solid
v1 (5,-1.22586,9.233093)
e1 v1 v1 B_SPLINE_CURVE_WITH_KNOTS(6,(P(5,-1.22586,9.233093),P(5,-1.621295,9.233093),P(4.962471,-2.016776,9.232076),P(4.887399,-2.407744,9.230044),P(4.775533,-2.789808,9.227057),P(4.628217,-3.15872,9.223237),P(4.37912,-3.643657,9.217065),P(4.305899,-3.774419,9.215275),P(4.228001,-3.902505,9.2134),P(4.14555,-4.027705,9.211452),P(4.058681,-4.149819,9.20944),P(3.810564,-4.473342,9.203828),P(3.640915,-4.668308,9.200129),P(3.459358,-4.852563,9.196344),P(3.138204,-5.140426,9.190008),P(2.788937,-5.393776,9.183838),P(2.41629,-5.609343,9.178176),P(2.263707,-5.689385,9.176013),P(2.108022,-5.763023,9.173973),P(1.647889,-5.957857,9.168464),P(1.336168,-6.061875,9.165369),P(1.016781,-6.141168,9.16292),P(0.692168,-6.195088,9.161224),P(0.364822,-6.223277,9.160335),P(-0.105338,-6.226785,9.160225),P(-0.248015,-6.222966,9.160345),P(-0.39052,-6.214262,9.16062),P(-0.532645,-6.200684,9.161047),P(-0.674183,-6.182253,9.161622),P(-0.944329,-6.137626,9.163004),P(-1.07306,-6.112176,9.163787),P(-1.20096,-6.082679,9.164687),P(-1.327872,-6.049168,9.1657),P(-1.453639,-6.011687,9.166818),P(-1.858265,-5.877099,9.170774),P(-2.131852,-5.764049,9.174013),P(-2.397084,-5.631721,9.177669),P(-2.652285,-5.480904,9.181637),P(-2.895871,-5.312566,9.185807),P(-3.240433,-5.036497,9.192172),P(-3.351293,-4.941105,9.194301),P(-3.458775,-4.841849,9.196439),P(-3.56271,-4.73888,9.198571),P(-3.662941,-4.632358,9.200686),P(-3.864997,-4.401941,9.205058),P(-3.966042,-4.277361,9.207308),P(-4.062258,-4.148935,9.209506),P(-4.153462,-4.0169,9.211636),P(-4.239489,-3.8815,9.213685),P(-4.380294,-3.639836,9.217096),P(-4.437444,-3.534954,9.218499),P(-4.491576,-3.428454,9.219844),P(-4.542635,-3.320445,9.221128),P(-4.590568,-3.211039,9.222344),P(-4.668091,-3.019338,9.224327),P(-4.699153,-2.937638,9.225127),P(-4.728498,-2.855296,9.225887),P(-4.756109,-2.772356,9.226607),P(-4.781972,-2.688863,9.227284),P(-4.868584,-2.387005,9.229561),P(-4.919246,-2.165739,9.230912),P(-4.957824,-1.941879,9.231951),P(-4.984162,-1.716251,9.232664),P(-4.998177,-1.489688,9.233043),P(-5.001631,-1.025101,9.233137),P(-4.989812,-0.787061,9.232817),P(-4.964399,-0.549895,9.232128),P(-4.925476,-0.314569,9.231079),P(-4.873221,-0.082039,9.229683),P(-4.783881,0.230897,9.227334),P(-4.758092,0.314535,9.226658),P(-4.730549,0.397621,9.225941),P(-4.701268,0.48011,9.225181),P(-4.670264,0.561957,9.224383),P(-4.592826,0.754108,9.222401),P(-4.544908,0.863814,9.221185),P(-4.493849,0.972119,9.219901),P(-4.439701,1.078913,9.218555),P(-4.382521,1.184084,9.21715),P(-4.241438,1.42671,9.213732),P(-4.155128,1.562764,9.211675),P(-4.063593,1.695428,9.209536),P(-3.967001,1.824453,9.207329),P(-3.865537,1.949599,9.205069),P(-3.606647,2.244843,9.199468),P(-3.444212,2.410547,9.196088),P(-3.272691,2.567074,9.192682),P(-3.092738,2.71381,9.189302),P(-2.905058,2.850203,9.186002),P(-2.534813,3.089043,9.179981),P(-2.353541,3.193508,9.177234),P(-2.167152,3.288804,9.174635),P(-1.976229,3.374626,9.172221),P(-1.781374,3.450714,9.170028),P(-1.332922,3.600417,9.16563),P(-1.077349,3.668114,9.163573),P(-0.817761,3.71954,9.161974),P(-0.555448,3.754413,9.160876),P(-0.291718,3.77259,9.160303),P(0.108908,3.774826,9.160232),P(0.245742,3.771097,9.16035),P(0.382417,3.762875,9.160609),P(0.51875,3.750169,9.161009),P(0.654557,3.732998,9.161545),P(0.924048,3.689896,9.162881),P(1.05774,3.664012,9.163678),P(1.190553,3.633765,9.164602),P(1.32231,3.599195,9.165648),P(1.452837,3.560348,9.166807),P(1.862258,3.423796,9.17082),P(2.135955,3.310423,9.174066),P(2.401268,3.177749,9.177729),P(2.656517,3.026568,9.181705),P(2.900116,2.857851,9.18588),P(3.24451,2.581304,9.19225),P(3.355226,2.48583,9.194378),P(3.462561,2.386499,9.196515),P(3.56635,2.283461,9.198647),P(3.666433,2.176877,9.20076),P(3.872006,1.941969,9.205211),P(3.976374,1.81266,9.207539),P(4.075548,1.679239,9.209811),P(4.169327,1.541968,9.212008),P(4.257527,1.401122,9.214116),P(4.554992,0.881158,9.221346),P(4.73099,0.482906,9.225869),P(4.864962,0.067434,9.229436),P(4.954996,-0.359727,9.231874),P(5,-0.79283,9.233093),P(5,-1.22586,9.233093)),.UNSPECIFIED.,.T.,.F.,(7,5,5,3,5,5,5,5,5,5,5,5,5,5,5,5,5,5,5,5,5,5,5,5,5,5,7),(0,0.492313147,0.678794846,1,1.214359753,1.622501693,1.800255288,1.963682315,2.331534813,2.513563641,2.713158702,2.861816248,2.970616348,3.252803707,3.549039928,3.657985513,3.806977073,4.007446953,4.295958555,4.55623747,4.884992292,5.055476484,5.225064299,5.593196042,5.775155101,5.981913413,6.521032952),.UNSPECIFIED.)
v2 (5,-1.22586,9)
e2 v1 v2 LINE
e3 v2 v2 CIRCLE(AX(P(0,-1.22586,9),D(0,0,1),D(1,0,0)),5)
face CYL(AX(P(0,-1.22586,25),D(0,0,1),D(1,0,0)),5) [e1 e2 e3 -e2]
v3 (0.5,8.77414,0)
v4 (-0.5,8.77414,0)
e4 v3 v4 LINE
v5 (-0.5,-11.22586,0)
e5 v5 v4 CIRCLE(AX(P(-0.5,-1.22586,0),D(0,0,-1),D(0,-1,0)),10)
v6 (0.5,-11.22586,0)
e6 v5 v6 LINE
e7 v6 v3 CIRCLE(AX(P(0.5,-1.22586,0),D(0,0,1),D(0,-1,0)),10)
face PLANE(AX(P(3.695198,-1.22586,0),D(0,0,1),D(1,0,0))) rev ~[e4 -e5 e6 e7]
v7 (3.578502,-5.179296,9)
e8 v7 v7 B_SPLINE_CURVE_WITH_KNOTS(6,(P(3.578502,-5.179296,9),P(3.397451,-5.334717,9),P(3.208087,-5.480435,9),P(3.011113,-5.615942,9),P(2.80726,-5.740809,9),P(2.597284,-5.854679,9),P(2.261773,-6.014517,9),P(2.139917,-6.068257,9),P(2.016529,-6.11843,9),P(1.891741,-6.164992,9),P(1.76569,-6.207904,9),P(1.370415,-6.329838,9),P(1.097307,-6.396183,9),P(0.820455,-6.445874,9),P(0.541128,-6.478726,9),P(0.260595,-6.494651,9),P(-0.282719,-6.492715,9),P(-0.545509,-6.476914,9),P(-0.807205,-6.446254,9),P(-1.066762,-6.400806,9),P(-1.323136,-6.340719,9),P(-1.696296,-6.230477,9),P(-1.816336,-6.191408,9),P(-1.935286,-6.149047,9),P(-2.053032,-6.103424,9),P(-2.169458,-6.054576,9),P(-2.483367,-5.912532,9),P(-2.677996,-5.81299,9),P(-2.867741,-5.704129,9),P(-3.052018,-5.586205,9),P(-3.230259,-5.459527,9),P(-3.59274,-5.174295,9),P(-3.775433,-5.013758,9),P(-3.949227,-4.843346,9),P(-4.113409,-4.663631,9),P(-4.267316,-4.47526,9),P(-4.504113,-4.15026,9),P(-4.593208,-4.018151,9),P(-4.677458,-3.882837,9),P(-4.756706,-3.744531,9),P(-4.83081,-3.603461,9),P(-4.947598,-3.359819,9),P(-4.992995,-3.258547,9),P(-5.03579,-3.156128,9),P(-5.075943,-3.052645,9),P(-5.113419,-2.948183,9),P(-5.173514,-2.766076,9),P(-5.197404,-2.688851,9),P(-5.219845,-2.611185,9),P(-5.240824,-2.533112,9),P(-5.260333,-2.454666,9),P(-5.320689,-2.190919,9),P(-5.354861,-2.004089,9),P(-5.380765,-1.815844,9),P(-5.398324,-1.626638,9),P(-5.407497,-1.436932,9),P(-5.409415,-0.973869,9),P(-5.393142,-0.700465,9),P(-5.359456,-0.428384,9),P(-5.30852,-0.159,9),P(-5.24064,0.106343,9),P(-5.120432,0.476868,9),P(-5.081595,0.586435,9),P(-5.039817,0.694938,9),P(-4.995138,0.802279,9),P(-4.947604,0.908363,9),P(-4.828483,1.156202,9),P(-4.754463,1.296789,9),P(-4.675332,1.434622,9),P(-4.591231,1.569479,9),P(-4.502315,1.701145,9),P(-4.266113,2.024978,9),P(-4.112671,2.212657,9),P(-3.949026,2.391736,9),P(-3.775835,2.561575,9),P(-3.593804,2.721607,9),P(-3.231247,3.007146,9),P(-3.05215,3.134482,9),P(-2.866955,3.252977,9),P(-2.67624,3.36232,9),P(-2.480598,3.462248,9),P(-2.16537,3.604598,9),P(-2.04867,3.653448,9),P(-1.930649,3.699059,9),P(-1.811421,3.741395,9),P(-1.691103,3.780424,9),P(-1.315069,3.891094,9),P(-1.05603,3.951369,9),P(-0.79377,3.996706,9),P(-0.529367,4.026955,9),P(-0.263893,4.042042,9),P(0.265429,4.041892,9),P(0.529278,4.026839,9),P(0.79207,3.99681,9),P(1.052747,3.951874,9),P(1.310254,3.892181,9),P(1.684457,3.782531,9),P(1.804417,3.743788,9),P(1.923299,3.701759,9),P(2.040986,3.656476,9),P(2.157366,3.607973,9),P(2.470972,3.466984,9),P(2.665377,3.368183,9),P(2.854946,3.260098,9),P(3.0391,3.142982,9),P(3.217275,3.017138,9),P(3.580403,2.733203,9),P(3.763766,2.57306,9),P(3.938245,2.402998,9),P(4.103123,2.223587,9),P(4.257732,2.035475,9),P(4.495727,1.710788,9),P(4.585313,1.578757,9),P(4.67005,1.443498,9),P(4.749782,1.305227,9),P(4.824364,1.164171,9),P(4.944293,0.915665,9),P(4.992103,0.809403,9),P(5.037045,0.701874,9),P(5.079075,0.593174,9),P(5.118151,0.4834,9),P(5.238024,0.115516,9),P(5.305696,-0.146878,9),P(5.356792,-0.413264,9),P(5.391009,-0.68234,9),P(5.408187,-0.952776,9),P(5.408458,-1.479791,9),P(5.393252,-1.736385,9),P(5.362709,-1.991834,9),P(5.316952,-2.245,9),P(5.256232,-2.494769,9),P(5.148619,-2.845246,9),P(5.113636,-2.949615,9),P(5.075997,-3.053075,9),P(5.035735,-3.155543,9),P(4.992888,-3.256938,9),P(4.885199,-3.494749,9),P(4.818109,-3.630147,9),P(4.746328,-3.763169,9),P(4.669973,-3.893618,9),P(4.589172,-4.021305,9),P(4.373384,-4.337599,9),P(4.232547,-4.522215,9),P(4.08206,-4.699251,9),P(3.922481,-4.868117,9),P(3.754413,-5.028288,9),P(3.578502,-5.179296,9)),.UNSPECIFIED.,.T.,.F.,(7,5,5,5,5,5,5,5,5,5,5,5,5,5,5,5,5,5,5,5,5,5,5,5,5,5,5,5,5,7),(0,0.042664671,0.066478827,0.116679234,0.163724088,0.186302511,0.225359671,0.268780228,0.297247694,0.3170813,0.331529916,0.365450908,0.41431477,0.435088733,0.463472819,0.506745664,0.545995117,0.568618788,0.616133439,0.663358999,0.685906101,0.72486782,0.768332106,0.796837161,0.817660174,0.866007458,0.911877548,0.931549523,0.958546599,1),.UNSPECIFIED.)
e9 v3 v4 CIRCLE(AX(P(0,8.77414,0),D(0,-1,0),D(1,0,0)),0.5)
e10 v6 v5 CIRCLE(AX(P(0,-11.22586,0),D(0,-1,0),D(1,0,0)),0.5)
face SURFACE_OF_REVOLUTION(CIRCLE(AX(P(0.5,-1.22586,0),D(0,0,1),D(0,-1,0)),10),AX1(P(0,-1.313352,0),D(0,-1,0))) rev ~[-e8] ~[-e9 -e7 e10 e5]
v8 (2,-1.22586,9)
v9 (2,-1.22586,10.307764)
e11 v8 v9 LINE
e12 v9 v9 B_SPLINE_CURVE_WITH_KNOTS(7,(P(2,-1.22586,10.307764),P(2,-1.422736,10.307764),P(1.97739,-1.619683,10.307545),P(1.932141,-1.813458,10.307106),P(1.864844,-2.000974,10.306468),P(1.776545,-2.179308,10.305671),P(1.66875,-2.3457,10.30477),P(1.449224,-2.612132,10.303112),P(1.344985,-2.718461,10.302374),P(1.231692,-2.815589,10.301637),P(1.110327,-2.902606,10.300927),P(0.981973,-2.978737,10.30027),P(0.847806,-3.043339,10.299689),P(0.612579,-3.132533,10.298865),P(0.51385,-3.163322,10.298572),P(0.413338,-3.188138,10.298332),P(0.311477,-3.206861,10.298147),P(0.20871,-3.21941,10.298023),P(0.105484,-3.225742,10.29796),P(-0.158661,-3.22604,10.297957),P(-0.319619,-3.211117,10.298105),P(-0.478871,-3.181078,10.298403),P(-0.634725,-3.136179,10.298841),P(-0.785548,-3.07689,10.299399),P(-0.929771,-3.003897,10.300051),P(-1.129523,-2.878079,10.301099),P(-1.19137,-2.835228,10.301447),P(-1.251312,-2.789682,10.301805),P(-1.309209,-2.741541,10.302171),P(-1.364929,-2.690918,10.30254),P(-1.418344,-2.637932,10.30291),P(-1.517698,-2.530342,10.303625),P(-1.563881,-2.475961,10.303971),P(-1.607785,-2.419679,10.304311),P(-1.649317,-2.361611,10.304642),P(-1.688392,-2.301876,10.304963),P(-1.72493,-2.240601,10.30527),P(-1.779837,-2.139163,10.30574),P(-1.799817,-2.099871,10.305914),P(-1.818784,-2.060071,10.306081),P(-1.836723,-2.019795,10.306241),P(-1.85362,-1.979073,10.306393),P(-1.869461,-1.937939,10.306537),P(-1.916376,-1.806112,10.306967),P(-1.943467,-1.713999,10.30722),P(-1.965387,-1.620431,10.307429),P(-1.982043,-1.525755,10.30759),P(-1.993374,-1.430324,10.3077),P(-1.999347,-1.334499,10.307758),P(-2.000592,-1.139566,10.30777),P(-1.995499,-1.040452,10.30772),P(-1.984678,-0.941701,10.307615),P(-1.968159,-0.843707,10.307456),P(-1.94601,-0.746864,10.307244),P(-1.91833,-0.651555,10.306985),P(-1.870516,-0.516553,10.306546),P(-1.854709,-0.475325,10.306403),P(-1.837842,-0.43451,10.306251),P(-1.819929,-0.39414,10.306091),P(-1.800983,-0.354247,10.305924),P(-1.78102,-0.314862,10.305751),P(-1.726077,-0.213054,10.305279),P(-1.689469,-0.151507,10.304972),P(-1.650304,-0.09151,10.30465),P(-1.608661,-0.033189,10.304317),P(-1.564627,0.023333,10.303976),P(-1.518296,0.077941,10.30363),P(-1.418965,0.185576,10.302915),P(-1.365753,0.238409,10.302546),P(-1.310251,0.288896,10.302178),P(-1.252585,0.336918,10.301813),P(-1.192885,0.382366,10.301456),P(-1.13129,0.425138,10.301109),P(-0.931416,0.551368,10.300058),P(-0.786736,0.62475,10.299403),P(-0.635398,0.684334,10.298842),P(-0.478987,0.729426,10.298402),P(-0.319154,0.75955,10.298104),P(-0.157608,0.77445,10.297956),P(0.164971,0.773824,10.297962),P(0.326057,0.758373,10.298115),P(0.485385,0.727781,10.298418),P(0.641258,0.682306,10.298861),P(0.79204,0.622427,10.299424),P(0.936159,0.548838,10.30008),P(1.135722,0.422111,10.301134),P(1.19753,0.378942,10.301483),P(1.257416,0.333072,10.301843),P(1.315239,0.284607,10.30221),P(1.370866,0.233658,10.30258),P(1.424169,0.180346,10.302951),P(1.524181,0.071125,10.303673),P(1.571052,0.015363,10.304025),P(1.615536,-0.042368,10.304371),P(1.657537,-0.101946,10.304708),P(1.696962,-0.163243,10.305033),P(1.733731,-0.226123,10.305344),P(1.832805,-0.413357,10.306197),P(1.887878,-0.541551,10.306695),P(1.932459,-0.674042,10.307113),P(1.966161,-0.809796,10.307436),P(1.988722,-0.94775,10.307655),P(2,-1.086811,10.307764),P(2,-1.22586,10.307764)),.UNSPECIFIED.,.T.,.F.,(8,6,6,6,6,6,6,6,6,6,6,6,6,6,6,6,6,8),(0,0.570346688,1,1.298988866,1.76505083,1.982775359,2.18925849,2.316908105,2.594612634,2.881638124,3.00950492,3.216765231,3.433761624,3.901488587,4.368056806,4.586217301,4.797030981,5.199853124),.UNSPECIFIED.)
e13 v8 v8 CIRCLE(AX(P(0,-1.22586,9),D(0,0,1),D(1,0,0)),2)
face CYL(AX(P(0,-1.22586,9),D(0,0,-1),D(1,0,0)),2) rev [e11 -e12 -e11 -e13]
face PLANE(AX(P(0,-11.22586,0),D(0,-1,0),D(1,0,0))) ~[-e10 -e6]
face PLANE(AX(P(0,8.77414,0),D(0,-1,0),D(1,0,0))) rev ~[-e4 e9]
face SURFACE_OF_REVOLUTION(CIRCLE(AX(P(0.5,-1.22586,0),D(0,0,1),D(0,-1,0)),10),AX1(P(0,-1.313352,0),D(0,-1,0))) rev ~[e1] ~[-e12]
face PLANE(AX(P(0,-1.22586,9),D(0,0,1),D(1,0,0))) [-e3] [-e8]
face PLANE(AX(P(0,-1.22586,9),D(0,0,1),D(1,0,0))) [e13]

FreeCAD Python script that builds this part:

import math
import FreeCAD as App
import Part
import Sketcher
from FreeCAD import Vector

doc = App.newDocument("Part")
params = doc.addObject("Spreadsheet::Sheet", "Params")
for row, (alias, value) in enumerate([
    ("sketch1_radius", "10 mm"),
    ("sketch1_width", "0.5 mm"),
    ("revolution_angle", "180 deg"),
    ("sketch2_diameter", "11 mm"),
    ("sketch2_diameter2", "10 mm"),
    ("pocket1_length", "16 mm"),
    ("sketch3_diameter", "4 mm"),
    ("pocket2_length", "5 mm"),
], start=1):
    params.set(f"A{row}", alias)
    params.set(f"B{row}", "=" + value)
    params.setAlias(f"B{row}", alias)

body = doc.addObject("PartDesign::Body", "Body")

sketch1 = doc.addObject("Sketcher::SketchObject", "Sketch")
body.addObject(sketch1)
sketch1.AttachmentSupport = (doc.XY_Plane, [""])
sketch1.MapMode = "FlatFace"
sketch1.addGeometry([
    Part.LineSegment(Vector(0, 8.8, 0), Vector(0, -11.2, 0)),
    Part.LineSegment(Vector(0, -11.2, 0), Vector(0.5, -11.2, 0)),
    Part.ArcOfCircle(Part.Circle(Vector(0.5, -1.2, 0), Vector(0, 0, 1), 10), math.radians(-90), math.radians(90)),
    Part.LineSegment(Vector(0.5, 8.8, 0), Vector(0, 8.8, 0)),
], False)
sketch1.addConstraint([
    Sketcher.Constraint("Coincident", 0, 2, 1, 1),
    Sketcher.Constraint("Tangent", 1, 2, 2, 1),
    Sketcher.Constraint("Tangent", 2, 2, 3, 1),
    Sketcher.Constraint("Coincident", 3, 2, 0, 1),
    Sketcher.Constraint("Vertical", 0),
    Sketcher.Constraint("Horizontal", 1),
    Sketcher.Constraint("Horizontal", 3),
    Sketcher.Constraint("PointOnObject", 0, 2, -2),
    Sketcher.Constraint("Radius", 2, 10.0),
    Sketcher.Constraint("DistanceX", 1, 1, 1, 2, 0.5),
    Sketcher.Constraint("DistanceY", 2, 3, -1, 1, 1.22586),
])
sketch1.setExpression("Constraints[8]", "Params.sketch1_radius")
sketch1.setExpression("Constraints[9]", "Params.sketch1_width")
revolution = doc.addObject("PartDesign::Revolution", "Revolution")
body.addObject(revolution)
revolution.Profile = sketch1
revolution.ReferenceAxis = (sketch1, ["V_Axis"])
revolution.setExpression("Angle", "Params.revolution_angle")
revolution.Reversed = True

sketch2 = doc.addObject("Sketcher::SketchObject", "Sketch001")
body.addObject(sketch2)
sketch2.AttachmentSupport = (doc.XY_Plane, [""])
sketch2.MapMode = "FlatFace"
sketch2.AttachmentOffset = App.Placement(Vector(0, 0, 25), App.Rotation())
sketch2.addGeometry([
    Part.Circle(Vector(0, -1, 0), Vector(0, 0, 1), 6),
    Part.Circle(Vector(0, -1, 0), Vector(0, 0, 1), 5),
], False)
sketch2.addConstraint([
    Sketcher.Constraint("Coincident", 1, 3, 0, 3),
    Sketcher.Constraint("PointOnObject", 0, 3, -2),
    Sketcher.Constraint("Diameter", 0, 11.0),
    Sketcher.Constraint("Diameter", 1, 10.0),
    Sketcher.Constraint("DistanceY", 0, 3, -1, 1, 1.22586),
])
sketch2.setExpression("Constraints[2]", "Params.sketch2_diameter")
sketch2.setExpression("Constraints[3]", "Params.sketch2_diameter2")
pocket1 = doc.addObject("PartDesign::Pocket", "Pocket")
body.addObject(pocket1)
pocket1.Profile = sketch2
pocket1.setExpression("Length", "Params.pocket1_length")

sketch3 = doc.addObject("Sketcher::SketchObject", "Sketch002")
body.addObject(sketch3)
sketch3.AttachmentSupport = (doc.XY_Plane, [""])
sketch3.MapMode = "FlatFace"
sketch3.AttachmentOffset = App.Placement(Vector(0, 0, 9), App.Rotation())
sketch3.addGeometry(Part.Circle(Vector(0, -1.2, 0), Vector(0, 0, 1), 2), False)
sketch3.addConstraint([
    Sketcher.Constraint("PointOnObject", 0, 3, -2),
    Sketcher.Constraint("Diameter", 0, 4.0),
    Sketcher.Constraint("DistanceY", 0, 3, -1, 1, 1.22586),
])
sketch3.setExpression("Constraints[1]", "Params.sketch3_diameter")
pocket2 = doc.addObject("PartDesign::Pocket", "Pocket001")
body.addObject(pocket2)
pocket2.Profile = sketch3
pocket2.setExpression("Length", "Params.pocket2_length")
pocket2.Reversed = True

doc.recompute()
